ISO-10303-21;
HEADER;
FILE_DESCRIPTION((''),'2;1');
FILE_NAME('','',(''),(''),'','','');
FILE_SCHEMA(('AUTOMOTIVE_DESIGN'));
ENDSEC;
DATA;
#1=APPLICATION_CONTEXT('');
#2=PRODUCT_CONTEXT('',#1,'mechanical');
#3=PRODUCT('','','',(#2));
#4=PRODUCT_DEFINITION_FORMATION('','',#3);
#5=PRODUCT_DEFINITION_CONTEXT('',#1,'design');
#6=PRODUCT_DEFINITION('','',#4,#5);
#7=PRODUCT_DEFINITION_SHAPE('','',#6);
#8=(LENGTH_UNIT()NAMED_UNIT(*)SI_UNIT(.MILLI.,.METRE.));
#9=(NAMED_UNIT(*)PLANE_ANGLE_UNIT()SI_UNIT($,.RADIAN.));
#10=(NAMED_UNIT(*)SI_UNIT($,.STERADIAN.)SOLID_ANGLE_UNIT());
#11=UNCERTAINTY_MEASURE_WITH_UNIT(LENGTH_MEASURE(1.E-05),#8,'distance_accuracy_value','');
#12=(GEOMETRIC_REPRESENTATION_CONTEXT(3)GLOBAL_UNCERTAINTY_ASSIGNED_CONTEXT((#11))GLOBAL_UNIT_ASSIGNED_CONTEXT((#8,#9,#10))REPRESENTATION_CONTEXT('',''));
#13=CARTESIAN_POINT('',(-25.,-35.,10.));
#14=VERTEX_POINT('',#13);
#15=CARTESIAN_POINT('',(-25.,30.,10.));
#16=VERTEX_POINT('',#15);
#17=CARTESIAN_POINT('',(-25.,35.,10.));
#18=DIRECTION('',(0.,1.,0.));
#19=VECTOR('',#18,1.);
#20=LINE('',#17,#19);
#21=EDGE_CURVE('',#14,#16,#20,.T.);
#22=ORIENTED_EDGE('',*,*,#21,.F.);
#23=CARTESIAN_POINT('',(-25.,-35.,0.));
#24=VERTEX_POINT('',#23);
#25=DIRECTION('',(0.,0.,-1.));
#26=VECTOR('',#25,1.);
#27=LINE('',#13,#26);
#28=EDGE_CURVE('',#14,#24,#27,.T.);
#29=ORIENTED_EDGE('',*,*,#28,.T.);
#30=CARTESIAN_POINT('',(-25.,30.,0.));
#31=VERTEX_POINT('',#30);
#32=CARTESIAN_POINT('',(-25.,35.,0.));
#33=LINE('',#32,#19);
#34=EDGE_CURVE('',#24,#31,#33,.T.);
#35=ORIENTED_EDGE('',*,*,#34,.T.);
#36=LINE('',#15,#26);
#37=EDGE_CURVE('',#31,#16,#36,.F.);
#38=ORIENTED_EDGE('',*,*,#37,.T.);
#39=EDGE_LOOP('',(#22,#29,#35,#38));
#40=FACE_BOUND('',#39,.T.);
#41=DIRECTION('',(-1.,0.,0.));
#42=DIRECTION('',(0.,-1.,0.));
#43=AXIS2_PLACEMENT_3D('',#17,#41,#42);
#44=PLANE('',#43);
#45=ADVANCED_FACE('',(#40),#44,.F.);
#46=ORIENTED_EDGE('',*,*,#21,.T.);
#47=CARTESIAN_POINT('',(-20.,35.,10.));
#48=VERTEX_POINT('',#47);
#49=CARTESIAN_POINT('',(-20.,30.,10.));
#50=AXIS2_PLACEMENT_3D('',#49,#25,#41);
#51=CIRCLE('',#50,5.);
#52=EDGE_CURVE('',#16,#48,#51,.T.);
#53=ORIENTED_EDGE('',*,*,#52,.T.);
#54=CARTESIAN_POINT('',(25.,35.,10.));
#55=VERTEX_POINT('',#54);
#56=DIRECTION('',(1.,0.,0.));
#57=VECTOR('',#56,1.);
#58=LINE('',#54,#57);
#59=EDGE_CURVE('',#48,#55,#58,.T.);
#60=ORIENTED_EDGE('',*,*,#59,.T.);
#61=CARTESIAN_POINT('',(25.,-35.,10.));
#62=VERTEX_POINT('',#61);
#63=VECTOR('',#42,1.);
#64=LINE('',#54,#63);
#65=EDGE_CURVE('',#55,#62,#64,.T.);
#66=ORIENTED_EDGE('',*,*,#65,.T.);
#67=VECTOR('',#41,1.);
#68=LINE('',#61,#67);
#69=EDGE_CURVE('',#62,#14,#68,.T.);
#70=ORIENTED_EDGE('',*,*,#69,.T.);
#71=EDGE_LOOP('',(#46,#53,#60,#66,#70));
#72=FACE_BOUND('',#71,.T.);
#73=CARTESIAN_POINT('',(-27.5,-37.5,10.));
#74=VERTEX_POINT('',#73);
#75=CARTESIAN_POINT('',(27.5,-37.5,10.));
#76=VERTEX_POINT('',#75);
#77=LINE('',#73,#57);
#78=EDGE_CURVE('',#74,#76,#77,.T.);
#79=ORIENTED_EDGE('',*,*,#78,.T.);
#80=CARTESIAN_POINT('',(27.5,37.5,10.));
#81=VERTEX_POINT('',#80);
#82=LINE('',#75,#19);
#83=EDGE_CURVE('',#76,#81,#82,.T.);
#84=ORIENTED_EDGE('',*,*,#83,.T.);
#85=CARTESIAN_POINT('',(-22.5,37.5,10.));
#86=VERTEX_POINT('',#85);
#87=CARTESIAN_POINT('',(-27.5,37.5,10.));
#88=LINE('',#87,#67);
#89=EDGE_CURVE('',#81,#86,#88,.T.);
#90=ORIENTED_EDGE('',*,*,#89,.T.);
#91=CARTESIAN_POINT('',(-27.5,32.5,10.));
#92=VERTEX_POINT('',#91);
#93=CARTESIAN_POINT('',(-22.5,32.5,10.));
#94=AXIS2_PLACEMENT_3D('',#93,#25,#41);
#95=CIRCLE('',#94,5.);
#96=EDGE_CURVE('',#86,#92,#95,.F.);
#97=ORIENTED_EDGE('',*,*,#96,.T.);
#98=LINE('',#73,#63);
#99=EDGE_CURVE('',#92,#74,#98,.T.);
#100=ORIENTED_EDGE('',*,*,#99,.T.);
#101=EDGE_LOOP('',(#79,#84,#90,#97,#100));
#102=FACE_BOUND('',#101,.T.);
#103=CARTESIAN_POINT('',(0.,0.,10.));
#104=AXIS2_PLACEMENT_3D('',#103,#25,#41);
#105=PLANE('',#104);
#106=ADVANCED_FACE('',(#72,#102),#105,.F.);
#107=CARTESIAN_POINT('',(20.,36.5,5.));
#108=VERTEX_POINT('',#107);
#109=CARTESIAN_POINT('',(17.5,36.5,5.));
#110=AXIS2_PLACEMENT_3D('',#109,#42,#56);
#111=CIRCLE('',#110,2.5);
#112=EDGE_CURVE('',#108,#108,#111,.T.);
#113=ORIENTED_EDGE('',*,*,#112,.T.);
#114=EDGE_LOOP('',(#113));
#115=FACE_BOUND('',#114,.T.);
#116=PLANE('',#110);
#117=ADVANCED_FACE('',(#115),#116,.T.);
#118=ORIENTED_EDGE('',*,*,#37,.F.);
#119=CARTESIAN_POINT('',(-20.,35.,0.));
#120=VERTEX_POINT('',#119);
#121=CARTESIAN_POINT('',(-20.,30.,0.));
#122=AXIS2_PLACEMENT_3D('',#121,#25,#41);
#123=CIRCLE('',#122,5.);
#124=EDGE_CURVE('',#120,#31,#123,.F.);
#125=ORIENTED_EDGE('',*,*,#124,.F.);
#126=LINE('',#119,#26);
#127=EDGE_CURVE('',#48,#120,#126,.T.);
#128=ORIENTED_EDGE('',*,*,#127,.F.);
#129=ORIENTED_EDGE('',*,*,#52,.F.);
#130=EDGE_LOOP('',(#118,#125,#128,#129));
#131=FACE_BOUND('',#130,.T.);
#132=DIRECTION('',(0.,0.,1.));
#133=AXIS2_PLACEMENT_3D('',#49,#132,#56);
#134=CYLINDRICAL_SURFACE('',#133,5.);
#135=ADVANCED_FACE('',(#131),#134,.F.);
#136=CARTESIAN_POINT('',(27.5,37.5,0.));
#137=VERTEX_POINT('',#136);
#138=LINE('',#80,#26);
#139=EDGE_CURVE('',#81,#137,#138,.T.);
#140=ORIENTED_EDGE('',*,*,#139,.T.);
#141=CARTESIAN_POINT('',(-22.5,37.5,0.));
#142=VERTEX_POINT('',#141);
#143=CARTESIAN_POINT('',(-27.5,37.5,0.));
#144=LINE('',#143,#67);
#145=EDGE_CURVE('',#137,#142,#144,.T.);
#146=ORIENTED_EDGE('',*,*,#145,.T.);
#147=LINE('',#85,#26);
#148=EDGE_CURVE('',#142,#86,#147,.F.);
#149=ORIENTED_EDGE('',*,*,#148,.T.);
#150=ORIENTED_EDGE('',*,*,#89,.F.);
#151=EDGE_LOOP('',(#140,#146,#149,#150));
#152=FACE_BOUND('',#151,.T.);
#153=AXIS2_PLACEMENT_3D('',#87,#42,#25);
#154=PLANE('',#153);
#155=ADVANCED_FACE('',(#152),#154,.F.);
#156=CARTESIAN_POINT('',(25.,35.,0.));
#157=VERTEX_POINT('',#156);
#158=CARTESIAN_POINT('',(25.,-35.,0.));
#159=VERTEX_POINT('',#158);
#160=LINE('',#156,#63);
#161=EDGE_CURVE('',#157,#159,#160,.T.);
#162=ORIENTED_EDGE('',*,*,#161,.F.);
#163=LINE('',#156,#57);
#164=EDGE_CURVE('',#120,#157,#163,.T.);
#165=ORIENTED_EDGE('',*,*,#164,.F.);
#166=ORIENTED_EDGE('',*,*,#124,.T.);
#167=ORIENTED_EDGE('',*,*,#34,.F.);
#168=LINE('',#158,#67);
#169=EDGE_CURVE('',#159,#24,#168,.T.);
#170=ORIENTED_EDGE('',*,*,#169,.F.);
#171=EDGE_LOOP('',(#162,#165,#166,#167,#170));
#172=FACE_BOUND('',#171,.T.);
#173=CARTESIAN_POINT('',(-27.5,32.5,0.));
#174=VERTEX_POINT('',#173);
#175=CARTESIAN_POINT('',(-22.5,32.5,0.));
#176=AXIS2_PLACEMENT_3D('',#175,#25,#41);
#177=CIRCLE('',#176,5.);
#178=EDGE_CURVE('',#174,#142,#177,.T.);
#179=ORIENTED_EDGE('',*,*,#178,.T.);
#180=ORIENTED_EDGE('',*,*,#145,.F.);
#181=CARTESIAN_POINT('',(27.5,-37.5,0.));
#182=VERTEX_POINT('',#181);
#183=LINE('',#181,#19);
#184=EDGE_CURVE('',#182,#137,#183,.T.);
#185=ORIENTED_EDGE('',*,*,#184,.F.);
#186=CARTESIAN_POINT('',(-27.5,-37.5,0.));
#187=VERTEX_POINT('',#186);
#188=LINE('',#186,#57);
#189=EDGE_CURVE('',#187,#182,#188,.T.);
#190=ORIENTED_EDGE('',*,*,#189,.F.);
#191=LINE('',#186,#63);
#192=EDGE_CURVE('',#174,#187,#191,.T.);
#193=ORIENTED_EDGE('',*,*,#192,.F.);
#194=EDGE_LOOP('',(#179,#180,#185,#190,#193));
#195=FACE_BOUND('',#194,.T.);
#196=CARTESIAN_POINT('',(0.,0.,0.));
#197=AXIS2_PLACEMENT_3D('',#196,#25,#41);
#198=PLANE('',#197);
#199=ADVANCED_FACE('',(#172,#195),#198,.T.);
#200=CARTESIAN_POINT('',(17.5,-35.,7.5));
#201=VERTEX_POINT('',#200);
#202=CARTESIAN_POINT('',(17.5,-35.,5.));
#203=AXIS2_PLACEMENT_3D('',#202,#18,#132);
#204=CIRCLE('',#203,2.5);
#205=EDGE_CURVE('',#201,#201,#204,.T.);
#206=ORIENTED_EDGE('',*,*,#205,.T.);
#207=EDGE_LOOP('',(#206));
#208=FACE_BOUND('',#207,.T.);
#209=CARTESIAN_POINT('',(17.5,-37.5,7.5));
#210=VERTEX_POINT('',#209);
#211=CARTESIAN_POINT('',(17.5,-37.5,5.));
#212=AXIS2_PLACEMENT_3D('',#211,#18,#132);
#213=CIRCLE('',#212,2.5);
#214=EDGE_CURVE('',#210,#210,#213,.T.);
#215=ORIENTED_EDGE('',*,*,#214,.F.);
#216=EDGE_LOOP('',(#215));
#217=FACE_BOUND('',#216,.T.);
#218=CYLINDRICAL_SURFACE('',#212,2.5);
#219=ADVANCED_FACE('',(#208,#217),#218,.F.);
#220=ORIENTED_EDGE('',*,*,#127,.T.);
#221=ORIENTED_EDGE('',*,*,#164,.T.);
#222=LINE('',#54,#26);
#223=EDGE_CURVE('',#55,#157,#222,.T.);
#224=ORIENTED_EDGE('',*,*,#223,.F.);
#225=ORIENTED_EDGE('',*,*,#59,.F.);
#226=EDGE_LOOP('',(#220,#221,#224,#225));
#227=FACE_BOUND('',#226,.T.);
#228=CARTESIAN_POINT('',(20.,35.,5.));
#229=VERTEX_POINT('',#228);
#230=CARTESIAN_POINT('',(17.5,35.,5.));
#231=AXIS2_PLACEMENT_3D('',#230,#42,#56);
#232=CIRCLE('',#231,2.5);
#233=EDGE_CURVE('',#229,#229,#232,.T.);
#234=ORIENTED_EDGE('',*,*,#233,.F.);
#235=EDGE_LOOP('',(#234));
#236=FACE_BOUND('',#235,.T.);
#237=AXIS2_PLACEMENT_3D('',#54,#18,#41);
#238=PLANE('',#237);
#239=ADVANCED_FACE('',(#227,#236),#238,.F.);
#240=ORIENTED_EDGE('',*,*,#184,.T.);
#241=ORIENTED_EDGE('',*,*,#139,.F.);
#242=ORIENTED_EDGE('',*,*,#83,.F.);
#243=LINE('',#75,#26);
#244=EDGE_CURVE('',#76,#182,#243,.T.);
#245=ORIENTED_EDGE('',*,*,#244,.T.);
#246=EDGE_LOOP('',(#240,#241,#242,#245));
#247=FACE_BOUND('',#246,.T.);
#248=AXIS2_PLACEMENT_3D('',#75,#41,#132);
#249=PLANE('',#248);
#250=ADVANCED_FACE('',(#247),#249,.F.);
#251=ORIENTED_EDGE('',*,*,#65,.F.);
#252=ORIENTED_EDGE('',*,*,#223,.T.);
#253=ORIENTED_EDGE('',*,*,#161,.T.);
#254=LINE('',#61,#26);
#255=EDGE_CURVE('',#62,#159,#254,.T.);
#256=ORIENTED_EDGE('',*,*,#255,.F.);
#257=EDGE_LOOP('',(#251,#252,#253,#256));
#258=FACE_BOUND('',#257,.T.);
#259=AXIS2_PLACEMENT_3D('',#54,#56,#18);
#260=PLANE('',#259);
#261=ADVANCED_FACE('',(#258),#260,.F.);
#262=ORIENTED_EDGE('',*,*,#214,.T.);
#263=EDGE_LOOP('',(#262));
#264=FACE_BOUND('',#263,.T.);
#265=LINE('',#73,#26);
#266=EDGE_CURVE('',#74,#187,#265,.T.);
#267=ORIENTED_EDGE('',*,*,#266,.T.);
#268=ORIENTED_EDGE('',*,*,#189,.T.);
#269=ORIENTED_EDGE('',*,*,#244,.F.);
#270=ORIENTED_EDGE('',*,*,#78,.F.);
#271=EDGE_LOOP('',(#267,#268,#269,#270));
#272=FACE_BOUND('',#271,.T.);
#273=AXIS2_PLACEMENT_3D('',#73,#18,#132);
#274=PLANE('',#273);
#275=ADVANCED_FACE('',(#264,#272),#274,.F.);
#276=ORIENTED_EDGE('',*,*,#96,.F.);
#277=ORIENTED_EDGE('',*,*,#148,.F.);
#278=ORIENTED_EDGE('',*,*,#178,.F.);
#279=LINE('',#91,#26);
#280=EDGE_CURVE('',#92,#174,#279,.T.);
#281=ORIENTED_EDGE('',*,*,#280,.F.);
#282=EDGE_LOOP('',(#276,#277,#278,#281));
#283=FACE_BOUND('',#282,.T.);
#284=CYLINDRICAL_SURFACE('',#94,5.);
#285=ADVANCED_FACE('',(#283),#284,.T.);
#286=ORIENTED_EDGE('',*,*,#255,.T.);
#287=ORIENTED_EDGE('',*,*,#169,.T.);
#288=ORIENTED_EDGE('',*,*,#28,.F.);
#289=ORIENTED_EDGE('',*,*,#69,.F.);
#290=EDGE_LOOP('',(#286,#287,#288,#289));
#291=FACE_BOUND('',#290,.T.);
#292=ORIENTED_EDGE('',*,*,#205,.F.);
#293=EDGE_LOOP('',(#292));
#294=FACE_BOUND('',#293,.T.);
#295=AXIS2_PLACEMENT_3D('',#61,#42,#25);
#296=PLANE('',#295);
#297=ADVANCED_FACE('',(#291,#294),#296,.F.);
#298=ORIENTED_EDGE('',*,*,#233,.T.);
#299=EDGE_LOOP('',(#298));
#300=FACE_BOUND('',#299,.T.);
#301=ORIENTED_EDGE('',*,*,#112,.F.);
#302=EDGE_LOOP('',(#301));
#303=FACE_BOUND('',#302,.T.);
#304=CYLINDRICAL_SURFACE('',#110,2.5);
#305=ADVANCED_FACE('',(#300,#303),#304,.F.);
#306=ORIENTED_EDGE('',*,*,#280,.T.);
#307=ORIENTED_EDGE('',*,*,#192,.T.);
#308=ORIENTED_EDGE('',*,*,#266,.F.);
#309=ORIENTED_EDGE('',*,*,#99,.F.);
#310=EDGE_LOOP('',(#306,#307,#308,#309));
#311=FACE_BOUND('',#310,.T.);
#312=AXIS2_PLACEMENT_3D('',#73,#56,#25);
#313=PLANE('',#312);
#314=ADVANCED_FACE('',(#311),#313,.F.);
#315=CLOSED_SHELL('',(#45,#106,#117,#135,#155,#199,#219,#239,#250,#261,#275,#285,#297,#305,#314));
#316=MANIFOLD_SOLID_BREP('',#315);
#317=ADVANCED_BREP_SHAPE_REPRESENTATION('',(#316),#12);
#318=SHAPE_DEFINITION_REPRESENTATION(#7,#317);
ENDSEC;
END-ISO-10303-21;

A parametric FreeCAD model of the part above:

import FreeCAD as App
import Part
import Sketcher
Q = App.Units.Quantity


def edges_at(feature, points):
    """Names of the edges that pass closest to the given points."""
    edges = feature.Shape.Edges
    near = lambda p: min(range(len(edges)), key=lambda i: edges[i].distToShape(Part.Vertex(*p))[0])
    return sorted({f"Edge{near(p) + 1}" for p in points})

doc = App.newDocument("Part")
body = doc.addObject("PartDesign::Body", "Body")

# Sketch on XY plane
sketch1 = body.newObject("Sketcher::SketchObject", "Sketch")
sketch1.AttachmentSupport = (doc.getObject("XY_Plane"), [""])
sketch1.MapMode = "FlatFace"
sketch1.addGeometry([
    Part.LineSegment(App.Vector(-27.5, 37.5, 0), App.Vector(-27.5, -37.5, 0)),
    Part.LineSegment(App.Vector(-27.5, -37.5, 0), App.Vector(27.5, -37.5, 0)),
    Part.LineSegment(App.Vector(27.5, -37.5, 0), App.Vector(27.5, 37.5, 0)),
    Part.LineSegment(App.Vector(27.5, 37.5, 0), App.Vector(-27.5, 37.5, 0)),
], False)
sketch1.addConstraint([
    Sketcher.Constraint("Coincident", 0, 2, 1, 1),
    Sketcher.Constraint("Coincident", 1, 2, 2, 1),
    Sketcher.Constraint("Coincident", 2, 2, 3, 1),
    Sketcher.Constraint("Coincident", 3, 2, 0, 1),
    Sketcher.Constraint("Vertical", 0),
    Sketcher.Constraint("Horizontal", 1),
    Sketcher.Constraint("Vertical", 2),
    Sketcher.Constraint("Horizontal", 3),
    Sketcher.Constraint("Symmetric", 0, 2, 2, 2, -1, 1),
    Sketcher.Constraint("DistanceX", 1, 1, 1, 2, Q("55 mm")),
    Sketcher.Constraint("DistanceY", 0, 2, 0, 1, Q("75 mm")),
])
pad1 = body.newObject("PartDesign::Pad", "Pad")
pad1.Profile = sketch1
pad1.Length = 10

# Sketch on XY plane
sketch2 = body.newObject("Sketcher::SketchObject", "Sketch001")
sketch2.AttachmentSupport = (doc.getObject("XY_Plane"), [""])
sketch2.MapMode = "FlatFace"
sketch2.addGeometry([
    Part.LineSegment(App.Vector(25, 35, 0), App.Vector(25, -35, 0)),
    Part.LineSegment(App.Vector(25, -35, 0), App.Vector(-25, -35, 0)),
    Part.LineSegment(App.Vector(-25, -35, 0), App.Vector(-25, 35, 0)),
    Part.LineSegment(App.Vector(-25, 35, 0), App.Vector(25, 35, 0)),
], False)
sketch2.addConstraint([
    Sketcher.Constraint("Coincident", 0, 2, 1, 1),
    Sketcher.Constraint("Coincident", 1, 2, 2, 1),
    Sketcher.Constraint("Coincident", 2, 2, 3, 1),
    Sketcher.Constraint("Coincident", 3, 2, 0, 1),
    Sketcher.Constraint("Vertical", 0),
    Sketcher.Constraint("Horizontal", 1),
    Sketcher.Constraint("Vertical", 2),
    Sketcher.Constraint("Horizontal", 3),
    Sketcher.Constraint("Symmetric", 0, 2, 2, 2, -1, 1),
    Sketcher.Constraint("DistanceX", 1, 2, 1, 1, Q("50 mm")),
    Sketcher.Constraint("DistanceY", 0, 2, 0, 1, Q("70 mm")),
])
pocket1 = body.newObject("PartDesign::Pocket", "Pocket")
pocket1.Profile = sketch2
pocket1.Type = "ThroughAll"
pocket1.Reversed = True
doc.recompute()

fillet = body.newObject("PartDesign::Fillet", "Fillet")
fillet.Base = (pocket1, edges_at(pocket1, [(-25, 35, 5), (-27.5, 37.5, 5)]))
fillet.Radius = 5

# Sketch on XZ plane
sketch3 = body.newObject("Sketcher::SketchObject", "Sketch002")
sketch3.AttachmentSupport = (doc.getObject("XZ_Plane"), [""])
sketch3.MapMode = "FlatFace"
sketch3.AttachmentOffset = App.Placement(App.Vector(0, 0, -35), App.Rotation())
sketch3.addGeometry(Part.Circle(App.Vector(17.5, 5, 0), App.Vector(0, 0, 1), 2.5), False)
sketch3.addConstraint([
    Sketcher.Constraint("Diameter", 0, Q("5 mm")),
    Sketcher.Constraint("DistanceY", -1, 1, 0, 3, Q("5 mm")),
    Sketcher.Constraint("DistanceX", -1, 1, 0, 3, Q("17.5 mm")),
])
pocket2 = body.newObject("PartDesign::Pocket", "Pocket001")
pocket2.Profile = sketch3
pocket2.Length = 1.5

# Sketch on XZ plane
sketch4 = body.newObject("Sketcher::SketchObject", "Sketch003")
sketch4.AttachmentSupport = (doc.getObject("XZ_Plane"), [""])
sketch4.MapMode = "FlatFace"
sketch4.AttachmentOffset = App.Placement(App.Vector(0, 0, 35), App.Rotation())
sketch4.addGeometry(Part.Circle(App.Vector(17.5, 5, 0), App.Vector(0, 0, 1), 2.5), False)
sketch4.addConstraint([
    Sketcher.Constraint("Diameter", 0, Q("5 mm")),
    Sketcher.Constraint("DistanceY", -1, 1, 0, 3, Q("5 mm")),
    Sketcher.Constraint("DistanceX", -1, 1, 0, 3, Q("17.5 mm")),
])
pocket3 = body.newObject("PartDesign::Pocket", "Pocket002")
pocket3.Profile = sketch4
pocket3.Type = "ThroughAll"
pocket3.Reversed = True

doc.recompute()
